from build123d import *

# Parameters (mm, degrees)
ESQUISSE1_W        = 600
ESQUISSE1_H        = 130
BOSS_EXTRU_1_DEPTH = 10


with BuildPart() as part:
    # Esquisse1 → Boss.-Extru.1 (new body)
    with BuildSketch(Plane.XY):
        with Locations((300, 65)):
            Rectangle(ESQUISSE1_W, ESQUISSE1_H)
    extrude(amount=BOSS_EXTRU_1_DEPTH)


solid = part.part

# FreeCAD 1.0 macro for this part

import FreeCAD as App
import Part
import Sketcher
from FreeCAD import Vector

doc = App.newDocument("Part")
body = doc.addObject("PartDesign::Body", "Body")

# Sketch on XY plane
sketch1 = body.newObject("Sketcher::SketchObject", "Sketch")
sketch1.AttachmentSupport = (doc.getObject("XY_Plane"), [""])
sketch1.MapMode = "FlatFace"
sketch1.addGeometry(Part.LineSegment(Vector(0, 130, 0), Vector(0, 0, 0)), False)
sketch1.addGeometry(Part.LineSegment(Vector(0, 0, 0), Vector(600, 0, 0)), False)
sketch1.addGeometry(Part.LineSegment(Vector(600, 0, 0), Vector(600, 130, 0)), False)
sketch1.addGeometry(Part.LineSegment(Vector(600, 130, 0), Vector(0, 130, 0)), False)
sketch1.addConstraint(Sketcher.Constraint("Coincident", 0, 2, 1, 1))
sketch1.addConstraint(Sketcher.Constraint("Coincident", 1, 2, 2, 1))
sketch1.addConstraint(Sketcher.Constraint("Coincident", 2, 2, 3, 1))
sketch1.addConstraint(Sketcher.Constraint("Coincident", 3, 2, 0, 1))
sketch1.addConstraint(Sketcher.Constraint("Vertical", 0))
sketch1.addConstraint(Sketcher.Constraint("Horizontal", 1))
sketch1.addConstraint(Sketcher.Constraint("Vertical", 2))
sketch1.addConstraint(Sketcher.Constraint("Horizontal", 3))
sketch1.addConstraint(Sketcher.Constraint("Coincident", 0, 2, -1, 1))
sketch1.addConstraint(Sketcher.Constraint("DistanceX", 1, 1, 1, 2, 600.0))
sketch1.addConstraint(Sketcher.Constraint("DistanceY", 0, 2, 0, 1, 130.0))
pad1 = body.newObject("PartDesign::Pad", "Pad")
pad1.Profile = sketch1
pad1.Length = 10

doc.recompute()
